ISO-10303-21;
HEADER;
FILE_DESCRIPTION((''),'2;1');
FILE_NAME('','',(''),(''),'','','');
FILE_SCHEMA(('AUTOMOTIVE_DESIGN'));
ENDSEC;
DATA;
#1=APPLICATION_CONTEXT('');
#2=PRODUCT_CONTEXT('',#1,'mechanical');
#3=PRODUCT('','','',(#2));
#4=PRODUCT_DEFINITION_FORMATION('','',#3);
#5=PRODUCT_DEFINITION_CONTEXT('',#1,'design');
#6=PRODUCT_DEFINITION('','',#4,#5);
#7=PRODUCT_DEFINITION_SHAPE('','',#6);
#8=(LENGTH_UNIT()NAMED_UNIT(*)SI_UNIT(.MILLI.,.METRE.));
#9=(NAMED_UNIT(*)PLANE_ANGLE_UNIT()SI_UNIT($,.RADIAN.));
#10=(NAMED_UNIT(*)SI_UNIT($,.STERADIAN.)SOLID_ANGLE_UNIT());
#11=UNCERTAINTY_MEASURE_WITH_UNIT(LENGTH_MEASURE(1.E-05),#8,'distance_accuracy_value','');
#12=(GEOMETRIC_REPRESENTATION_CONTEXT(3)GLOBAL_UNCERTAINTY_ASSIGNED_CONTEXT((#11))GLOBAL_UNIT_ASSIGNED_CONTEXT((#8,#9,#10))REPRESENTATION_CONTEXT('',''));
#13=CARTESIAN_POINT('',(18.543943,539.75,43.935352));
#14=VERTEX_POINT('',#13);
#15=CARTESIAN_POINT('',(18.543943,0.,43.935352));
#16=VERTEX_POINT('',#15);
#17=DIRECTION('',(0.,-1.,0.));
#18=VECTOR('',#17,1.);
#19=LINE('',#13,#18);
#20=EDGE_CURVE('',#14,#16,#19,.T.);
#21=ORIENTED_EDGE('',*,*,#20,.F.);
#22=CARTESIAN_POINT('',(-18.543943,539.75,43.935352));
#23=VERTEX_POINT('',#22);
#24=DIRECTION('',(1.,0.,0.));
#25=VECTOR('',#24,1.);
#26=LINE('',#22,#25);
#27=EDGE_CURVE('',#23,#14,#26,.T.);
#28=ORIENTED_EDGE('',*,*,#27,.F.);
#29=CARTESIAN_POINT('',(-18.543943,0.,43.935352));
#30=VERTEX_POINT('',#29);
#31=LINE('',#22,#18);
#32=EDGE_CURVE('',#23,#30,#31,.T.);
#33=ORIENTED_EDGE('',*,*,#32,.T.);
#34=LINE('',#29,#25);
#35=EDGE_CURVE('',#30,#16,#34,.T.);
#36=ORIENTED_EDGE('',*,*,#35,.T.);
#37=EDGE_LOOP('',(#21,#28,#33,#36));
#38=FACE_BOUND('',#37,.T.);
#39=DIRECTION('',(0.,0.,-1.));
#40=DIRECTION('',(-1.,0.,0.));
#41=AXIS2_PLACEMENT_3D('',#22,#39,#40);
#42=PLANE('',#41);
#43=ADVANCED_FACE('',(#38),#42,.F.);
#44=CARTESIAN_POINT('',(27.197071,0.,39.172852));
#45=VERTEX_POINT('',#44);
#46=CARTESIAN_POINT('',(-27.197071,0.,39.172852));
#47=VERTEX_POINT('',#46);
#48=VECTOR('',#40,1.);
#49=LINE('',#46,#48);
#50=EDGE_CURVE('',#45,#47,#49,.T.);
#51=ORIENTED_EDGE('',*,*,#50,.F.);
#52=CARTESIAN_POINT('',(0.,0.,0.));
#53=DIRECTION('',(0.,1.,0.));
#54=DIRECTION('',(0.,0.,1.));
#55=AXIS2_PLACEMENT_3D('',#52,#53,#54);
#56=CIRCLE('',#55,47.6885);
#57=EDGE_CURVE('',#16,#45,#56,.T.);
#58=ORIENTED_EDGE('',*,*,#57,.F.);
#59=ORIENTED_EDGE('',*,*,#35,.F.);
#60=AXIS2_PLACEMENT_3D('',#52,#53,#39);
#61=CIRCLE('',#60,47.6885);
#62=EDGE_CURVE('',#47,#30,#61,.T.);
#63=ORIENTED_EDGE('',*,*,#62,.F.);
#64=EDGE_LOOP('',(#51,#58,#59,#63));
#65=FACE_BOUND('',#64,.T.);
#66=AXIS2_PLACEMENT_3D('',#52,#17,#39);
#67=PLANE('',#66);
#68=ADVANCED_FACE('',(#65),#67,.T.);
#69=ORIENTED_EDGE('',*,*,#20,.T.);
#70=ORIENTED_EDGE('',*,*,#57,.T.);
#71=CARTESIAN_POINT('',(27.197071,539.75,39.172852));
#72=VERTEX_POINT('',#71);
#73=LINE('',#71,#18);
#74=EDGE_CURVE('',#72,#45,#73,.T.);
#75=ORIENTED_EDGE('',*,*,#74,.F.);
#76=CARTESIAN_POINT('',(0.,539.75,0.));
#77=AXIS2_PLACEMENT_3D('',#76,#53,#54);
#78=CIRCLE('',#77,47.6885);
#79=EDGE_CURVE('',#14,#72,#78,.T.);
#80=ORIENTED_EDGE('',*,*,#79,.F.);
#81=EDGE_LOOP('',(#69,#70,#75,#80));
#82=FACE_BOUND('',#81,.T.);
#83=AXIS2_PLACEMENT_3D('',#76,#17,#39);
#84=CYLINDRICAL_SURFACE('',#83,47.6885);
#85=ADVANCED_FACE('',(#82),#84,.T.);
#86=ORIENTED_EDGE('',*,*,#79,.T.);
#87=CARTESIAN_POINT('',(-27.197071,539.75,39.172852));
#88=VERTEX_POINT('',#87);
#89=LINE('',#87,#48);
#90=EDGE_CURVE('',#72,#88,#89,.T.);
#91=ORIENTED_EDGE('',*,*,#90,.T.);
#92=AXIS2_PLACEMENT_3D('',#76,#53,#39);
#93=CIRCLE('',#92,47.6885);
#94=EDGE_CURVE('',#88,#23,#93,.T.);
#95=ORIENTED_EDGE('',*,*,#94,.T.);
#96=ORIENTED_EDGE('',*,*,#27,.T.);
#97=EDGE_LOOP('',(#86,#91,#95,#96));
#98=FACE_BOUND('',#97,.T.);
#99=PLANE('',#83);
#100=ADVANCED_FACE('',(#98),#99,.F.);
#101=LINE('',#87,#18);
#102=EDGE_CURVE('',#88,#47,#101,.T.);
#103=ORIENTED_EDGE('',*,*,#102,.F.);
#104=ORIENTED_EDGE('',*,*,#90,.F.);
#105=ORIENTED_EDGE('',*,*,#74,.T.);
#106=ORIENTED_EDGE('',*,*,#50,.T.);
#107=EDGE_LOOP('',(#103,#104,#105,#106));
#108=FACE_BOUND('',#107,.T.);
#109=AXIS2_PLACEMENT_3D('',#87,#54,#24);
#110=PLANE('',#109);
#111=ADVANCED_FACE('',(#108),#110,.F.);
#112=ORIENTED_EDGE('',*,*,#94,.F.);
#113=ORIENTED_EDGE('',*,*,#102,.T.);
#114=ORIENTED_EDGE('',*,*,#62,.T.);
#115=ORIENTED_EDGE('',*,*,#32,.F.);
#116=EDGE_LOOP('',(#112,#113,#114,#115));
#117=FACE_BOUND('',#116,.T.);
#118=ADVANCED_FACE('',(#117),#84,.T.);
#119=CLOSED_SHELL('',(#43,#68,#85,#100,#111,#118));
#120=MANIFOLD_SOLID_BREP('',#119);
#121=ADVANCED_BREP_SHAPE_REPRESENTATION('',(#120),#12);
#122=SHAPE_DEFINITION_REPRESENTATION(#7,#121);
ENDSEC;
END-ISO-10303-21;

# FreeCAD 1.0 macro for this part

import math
import FreeCAD as App
import Part
import Sketcher
Q = App.Units.Quantity

doc = App.newDocument("Part")
body = doc.addObject("PartDesign::Body", "Body")

sketch1 = body.newObject("Sketcher::SketchObject", "Sketch")
sketch1.AttachmentSupport = (doc.getObject("XZ_Plane"), [""])
sketch1.MapMode = "FlatFace"
sketch1.addGeometry([
    Part.LineSegment(App.Vector(-19, 44, 0), App.Vector(19, 44, 0)),
    Part.ArcOfCircle(Part.Circle(App.Vector(0, 0, 0), App.Vector(0, 0, 1), 48), math.radians(55.23), math.radians(67.12)),
    Part.LineSegment(App.Vector(27, 39, 0), App.Vector(-27, 39, 0)),
    Part.ArcOfCircle(Part.Circle(App.Vector(0, 0, 0), App.Vector(0, 0, 1), 48), math.radians(112.88), math.radians(124.77)),
], False)
sketch1.addConstraint([
    Sketcher.Constraint("Coincident", 0, 2, 1, 2),
    Sketcher.Constraint("Coincident", 1, 1, 2, 1),
    Sketcher.Constraint("Coincident", 2, 2, 3, 2),
    Sketcher.Constraint("Coincident", 3, 1, 0, 1),
    Sketcher.Constraint("Horizontal", 0),
    Sketcher.Constraint("Horizontal", 2),
    Sketcher.Constraint("Coincident", 1, 3, -1, 1),
    Sketcher.Constraint("Coincident", 3, 3, -1, 1),
    Sketcher.Constraint("Equal", 1, 3),
    Sketcher.Constraint("Radius", 1, Q("1.8775 in")),
    Sketcher.Constraint("DistanceY", 1, 1, 0, 2, Q("0.1875 in")),
    Sketcher.Constraint("DistanceX", 2, 2, 2, 1, Q("54.394142 mm")),
])
pad1 = body.newObject("PartDesign::Pad", "Pad")
pad1.Profile = sketch1
pad1.Length = Q("21.25 in")
pad1.Reversed = True

doc.recompute()
